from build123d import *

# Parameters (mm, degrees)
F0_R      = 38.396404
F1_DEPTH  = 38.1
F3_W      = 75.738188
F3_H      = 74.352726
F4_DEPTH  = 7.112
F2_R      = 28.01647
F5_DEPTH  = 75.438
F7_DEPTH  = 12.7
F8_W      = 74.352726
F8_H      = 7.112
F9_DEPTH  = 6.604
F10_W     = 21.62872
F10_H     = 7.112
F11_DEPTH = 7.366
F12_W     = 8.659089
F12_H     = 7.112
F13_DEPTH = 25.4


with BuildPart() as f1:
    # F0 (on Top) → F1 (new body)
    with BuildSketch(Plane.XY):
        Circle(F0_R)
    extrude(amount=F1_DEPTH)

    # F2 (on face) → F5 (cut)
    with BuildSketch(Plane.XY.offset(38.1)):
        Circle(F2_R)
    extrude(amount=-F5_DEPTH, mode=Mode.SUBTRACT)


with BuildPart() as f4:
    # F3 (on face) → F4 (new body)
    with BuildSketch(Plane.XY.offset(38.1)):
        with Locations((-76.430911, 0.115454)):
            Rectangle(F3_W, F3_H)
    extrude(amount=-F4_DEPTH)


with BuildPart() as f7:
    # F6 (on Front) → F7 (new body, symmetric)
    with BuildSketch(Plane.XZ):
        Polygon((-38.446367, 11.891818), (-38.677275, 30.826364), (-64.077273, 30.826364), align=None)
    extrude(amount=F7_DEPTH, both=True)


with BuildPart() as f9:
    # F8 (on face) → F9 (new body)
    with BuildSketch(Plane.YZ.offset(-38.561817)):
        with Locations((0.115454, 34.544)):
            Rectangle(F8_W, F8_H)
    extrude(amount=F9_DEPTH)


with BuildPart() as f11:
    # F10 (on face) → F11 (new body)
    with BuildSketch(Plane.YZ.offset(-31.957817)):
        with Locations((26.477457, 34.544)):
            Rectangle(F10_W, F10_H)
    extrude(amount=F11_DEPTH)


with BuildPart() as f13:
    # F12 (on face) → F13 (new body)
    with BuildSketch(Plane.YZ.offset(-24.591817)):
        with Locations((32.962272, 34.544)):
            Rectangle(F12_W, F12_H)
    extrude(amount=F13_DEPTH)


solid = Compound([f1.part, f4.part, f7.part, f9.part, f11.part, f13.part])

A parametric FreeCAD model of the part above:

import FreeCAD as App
import Part
import Sketcher
from FreeCAD import Vector
Q = App.Units.Quantity


def add_polygon(sketch, points):
    """Adds a closed chain of lines whose ends are joined by coincident constraints."""
    first, n = sketch.GeometryCount, len(points)
    for a, b in zip(points, points[1:] + points[:1]):
        sketch.addGeometry(Part.LineSegment(App.Vector(*a, 0), App.Vector(*b, 0)), False)
    for i in range(n):
        sketch.addConstraint(Sketcher.Constraint("Coincident", first + i, 2, first + (i + 1) % n, 1))

doc = App.newDocument("Part")
body = doc.addObject("PartDesign::Body", "Body")

# Sketch on XY plane
sketch1 = body.newObject("Sketcher::SketchObject", "Sketch")
sketch1.AttachmentSupport = (doc.getObject("XY_Plane"), [""])
sketch1.MapMode = "FlatFace"
sketch1.addGeometry(Part.Circle(Vector(0, 0, 0), Vector(0, 0, 1), 38), False)
sketch1.addConstraint(Sketcher.Constraint("Coincident", 0, 3, -1, 1))
sketch1.addConstraint(Sketcher.Constraint("Diameter", 0, Q("76.792808 mm")))
pad1 = body.newObject("PartDesign::Pad", "Pad")
pad1.Profile = sketch1
pad1.Length = Q("1.5 in")

# Sketch on XY plane
sketch2 = body.newObject("Sketcher::SketchObject", "Sketch001")
sketch2.AttachmentSupport = (doc.getObject("XY_Plane"), [""])
sketch2.MapMode = "FlatFace"
sketch2.AttachmentOffset = App.Placement(Vector(0, 0, 1.5 * 25.4), App.Rotation())
sketch2.addGeometry(Part.Circle(Vector(0, 0, 0), Vector(0, 0, 1), 28), False)
sketch2.addConstraint(Sketcher.Constraint("Coincident", 0, 3, -1, 1))
sketch2.addConstraint(Sketcher.Constraint("Diameter", 0, Q("56.03294 mm")))
pocket1 = body.newObject("PartDesign::Pocket", "Pocket")
pocket1.Profile = sketch2
pocket1.Length = Q("2.97 in")
body2 = doc.addObject("PartDesign::Body", "Body001")

# Sketch on XY plane
sketch3 = body2.newObject("Sketcher::SketchObject", "Sketch002")
sketch3.AttachmentSupport = (doc.getObject("XY_Plane001"), [""])
sketch3.MapMode = "FlatFace"
sketch3.AttachmentOffset = App.Placement(Vector(0, 0, 1.5 * 25.4), App.Rotation())
add_polygon(sketch3, [(-114, 37), (-114, -37), (-39, -37), (-39, 37)])  # lines 0-3
sketch3.addConstraint(Sketcher.Constraint("Vertical", 0))
sketch3.addConstraint(Sketcher.Constraint("Horizontal", 1))
sketch3.addConstraint(Sketcher.Constraint("Vertical", 2))
sketch3.addConstraint(Sketcher.Constraint("Horizontal", 3))
sketch3.addConstraint(Sketcher.Constraint("DistanceX", 0, 2, -1, 1, Q("4.5000002 in")))
sketch3.addConstraint(Sketcher.Constraint("DistanceX", 1, 1, 1, 2, Q("75.738188 mm")))
sketch3.addConstraint(Sketcher.Constraint("DistanceY", 0, 2, 0, 1, Q("74.352726 mm")))
sketch3.addConstraint(Sketcher.Constraint("DistanceY", 0, 2, -1, 1, Q("37.060909 mm")))
pad2 = body2.newObject("PartDesign::Pad", "Pad001")
pad2.Profile = sketch3
pad2.Length = Q("0.28 in")
pad2.Reversed = True
body3 = doc.addObject("PartDesign::Body", "Body002")

# Sketch on XZ plane
sketch4 = body3.newObject("Sketcher::SketchObject", "Sketch003")
sketch4.AttachmentSupport = (doc.getObject("XZ_Plane002"), [""])
sketch4.MapMode = "FlatFace"
add_polygon(sketch4, [(-38, 12), (-39, 31), (-64, 31)])  # lines 0-2
sketch4.addConstraint(Sketcher.Constraint("Horizontal", 1))
sketch4.addConstraint(Sketcher.Constraint("DistanceX", 1, 2, 1, 1, Q("0.9999999 in")))
sketch4.addConstraint(Sketcher.Constraint("Distance", 2, Q("31.866289 mm")))
sketch4.addConstraint(Sketcher.Constraint("DistanceY", -1, 1, 2, 2, Q("11.891818 mm")))
sketch4.addConstraint(Sketcher.Constraint("Distance", 0, Q("18.935954 mm")))
sketch4.addConstraint(Sketcher.Constraint("DistanceX", 0, 2, -1, 1, Q("38.677275 mm")))
pad3 = body3.newObject("PartDesign::Pad", "Pad002")
pad3.Profile = sketch4
pad3.Length = Q("1 in")
pad3.Midplane = True
body4 = doc.addObject("PartDesign::Body", "Body003")

# Sketch on YZ plane
sketch5 = body4.newObject("Sketcher::SketchObject", "Sketch004")
sketch5.AttachmentSupport = (doc.getObject("YZ_Plane003"), [""])
sketch5.MapMode = "FlatFace"
sketch5.AttachmentOffset = App.Placement(Vector(0, 0, -38.561817), App.Rotation())
add_polygon(sketch5, [(-37, 38), (-37, 31), (37, 31), (37, 38)])  # lines 0-3
sketch5.addConstraint(Sketcher.Constraint("Vertical", 0))
sketch5.addConstraint(Sketcher.Constraint("Horizontal", 1))
sketch5.addConstraint(Sketcher.Constraint("Vertical", 2))
sketch5.addConstraint(Sketcher.Constraint("Horizontal", 3))
sketch5.addConstraint(Sketcher.Constraint("DistanceY", 0, 2, 0, 1, Q("0.28 in")))
sketch5.addConstraint(Sketcher.Constraint("DistanceY", -1, 1, 2, 2, Q("1.5 in")))
sketch5.addConstraint(Sketcher.Constraint("DistanceX", 1, 1, 1, 2, Q("74.352726 mm")))
sketch5.addConstraint(Sketcher.Constraint("DistanceX", 0, 2, -1, 1, Q("37.060909 mm")))
pad4 = body4.newObject("PartDesign::Pad", "Pad003")
pad4.Profile = sketch5
pad4.Length = Q("0.26 in")
body5 = doc.addObject("PartDesign::Body", "Body004")

# Sketch on YZ plane
sketch6 = body5.newObject("Sketcher::SketchObject", "Sketch005")
sketch6.AttachmentSupport = (doc.getObject("YZ_Plane004"), [""])
sketch6.MapMode = "FlatFace"
sketch6.AttachmentOffset = App.Placement(Vector(0, 0, -31.957817), App.Rotation())
add_polygon(sketch6, [(16, 38), (16, 31), (37, 31), (37, 38)])  # lines 0-3
sketch6.addConstraint(Sketcher.Constraint("Vertical", 0))
sketch6.addConstraint(Sketcher.Constraint("Horizontal", 1))
sketch6.addConstraint(Sketcher.Constraint("Vertical", 2))
sketch6.addConstraint(Sketcher.Constraint("Horizontal", 3))
sketch6.addConstraint(Sketcher.Constraint("DistanceY", 0, 2, 0, 1, Q("0.28 in")))
sketch6.addConstraint(Sketcher.Constraint("DistanceY", -1, 1, 2, 2, Q("1.5 in")))
sketch6.addConstraint(Sketcher.Constraint("DistanceX", 1, 1, 1, 2, Q("21.62872 mm")))
sketch6.addConstraint(Sketcher.Constraint("DistanceX", -1, 1, 0, 2, Q("15.663097 mm")))
pad5 = body5.newObject("PartDesign::Pad", "Pad004")
pad5.Profile = sketch6
pad5.Length = Q("0.29 in")
body6 = doc.addObject("PartDesign::Body", "Body005")

# Sketch on YZ plane
sketch7 = body6.newObject("Sketcher::SketchObject", "Sketch006")
sketch7.AttachmentSupport = (doc.getObject("YZ_Plane005"), [""])
sketch7.MapMode = "FlatFace"
sketch7.AttachmentOffset = App.Placement(Vector(0, 0, -24.591817), App.Rotation())
add_polygon(sketch7, [(29, 38), (29, 31), (37, 31), (37, 38)])  # lines 0-3
sketch7.addConstraint(Sketcher.Constraint("Vertical", 0))
sketch7.addConstraint(Sketcher.Constraint("Horizontal", 1))
sketch7.addConstraint(Sketcher.Constraint("Vertical", 2))
sketch7.addConstraint(Sketcher.Constraint("Horizontal", 3))
sketch7.addConstraint(Sketcher.Constraint("DistanceY", 0, 2, 0, 1, Q("0.28 in")))
sketch7.addConstraint(Sketcher.Constraint("DistanceY", -1, 1, 2, 2, Q("1.5 in")))
sketch7.addConstraint(Sketcher.Constraint("DistanceX", 1, 1, 1, 2, Q("8.659089 mm")))
sketch7.addConstraint(Sketcher.Constraint("DistanceX", -1, 1, 0, 2, Q("28.632728 mm")))
pad6 = body6.newObject("PartDesign::Pad", "Pad005")
pad6.Profile = sketch7
pad6.Length = Q("1 in")

doc.recompute()
